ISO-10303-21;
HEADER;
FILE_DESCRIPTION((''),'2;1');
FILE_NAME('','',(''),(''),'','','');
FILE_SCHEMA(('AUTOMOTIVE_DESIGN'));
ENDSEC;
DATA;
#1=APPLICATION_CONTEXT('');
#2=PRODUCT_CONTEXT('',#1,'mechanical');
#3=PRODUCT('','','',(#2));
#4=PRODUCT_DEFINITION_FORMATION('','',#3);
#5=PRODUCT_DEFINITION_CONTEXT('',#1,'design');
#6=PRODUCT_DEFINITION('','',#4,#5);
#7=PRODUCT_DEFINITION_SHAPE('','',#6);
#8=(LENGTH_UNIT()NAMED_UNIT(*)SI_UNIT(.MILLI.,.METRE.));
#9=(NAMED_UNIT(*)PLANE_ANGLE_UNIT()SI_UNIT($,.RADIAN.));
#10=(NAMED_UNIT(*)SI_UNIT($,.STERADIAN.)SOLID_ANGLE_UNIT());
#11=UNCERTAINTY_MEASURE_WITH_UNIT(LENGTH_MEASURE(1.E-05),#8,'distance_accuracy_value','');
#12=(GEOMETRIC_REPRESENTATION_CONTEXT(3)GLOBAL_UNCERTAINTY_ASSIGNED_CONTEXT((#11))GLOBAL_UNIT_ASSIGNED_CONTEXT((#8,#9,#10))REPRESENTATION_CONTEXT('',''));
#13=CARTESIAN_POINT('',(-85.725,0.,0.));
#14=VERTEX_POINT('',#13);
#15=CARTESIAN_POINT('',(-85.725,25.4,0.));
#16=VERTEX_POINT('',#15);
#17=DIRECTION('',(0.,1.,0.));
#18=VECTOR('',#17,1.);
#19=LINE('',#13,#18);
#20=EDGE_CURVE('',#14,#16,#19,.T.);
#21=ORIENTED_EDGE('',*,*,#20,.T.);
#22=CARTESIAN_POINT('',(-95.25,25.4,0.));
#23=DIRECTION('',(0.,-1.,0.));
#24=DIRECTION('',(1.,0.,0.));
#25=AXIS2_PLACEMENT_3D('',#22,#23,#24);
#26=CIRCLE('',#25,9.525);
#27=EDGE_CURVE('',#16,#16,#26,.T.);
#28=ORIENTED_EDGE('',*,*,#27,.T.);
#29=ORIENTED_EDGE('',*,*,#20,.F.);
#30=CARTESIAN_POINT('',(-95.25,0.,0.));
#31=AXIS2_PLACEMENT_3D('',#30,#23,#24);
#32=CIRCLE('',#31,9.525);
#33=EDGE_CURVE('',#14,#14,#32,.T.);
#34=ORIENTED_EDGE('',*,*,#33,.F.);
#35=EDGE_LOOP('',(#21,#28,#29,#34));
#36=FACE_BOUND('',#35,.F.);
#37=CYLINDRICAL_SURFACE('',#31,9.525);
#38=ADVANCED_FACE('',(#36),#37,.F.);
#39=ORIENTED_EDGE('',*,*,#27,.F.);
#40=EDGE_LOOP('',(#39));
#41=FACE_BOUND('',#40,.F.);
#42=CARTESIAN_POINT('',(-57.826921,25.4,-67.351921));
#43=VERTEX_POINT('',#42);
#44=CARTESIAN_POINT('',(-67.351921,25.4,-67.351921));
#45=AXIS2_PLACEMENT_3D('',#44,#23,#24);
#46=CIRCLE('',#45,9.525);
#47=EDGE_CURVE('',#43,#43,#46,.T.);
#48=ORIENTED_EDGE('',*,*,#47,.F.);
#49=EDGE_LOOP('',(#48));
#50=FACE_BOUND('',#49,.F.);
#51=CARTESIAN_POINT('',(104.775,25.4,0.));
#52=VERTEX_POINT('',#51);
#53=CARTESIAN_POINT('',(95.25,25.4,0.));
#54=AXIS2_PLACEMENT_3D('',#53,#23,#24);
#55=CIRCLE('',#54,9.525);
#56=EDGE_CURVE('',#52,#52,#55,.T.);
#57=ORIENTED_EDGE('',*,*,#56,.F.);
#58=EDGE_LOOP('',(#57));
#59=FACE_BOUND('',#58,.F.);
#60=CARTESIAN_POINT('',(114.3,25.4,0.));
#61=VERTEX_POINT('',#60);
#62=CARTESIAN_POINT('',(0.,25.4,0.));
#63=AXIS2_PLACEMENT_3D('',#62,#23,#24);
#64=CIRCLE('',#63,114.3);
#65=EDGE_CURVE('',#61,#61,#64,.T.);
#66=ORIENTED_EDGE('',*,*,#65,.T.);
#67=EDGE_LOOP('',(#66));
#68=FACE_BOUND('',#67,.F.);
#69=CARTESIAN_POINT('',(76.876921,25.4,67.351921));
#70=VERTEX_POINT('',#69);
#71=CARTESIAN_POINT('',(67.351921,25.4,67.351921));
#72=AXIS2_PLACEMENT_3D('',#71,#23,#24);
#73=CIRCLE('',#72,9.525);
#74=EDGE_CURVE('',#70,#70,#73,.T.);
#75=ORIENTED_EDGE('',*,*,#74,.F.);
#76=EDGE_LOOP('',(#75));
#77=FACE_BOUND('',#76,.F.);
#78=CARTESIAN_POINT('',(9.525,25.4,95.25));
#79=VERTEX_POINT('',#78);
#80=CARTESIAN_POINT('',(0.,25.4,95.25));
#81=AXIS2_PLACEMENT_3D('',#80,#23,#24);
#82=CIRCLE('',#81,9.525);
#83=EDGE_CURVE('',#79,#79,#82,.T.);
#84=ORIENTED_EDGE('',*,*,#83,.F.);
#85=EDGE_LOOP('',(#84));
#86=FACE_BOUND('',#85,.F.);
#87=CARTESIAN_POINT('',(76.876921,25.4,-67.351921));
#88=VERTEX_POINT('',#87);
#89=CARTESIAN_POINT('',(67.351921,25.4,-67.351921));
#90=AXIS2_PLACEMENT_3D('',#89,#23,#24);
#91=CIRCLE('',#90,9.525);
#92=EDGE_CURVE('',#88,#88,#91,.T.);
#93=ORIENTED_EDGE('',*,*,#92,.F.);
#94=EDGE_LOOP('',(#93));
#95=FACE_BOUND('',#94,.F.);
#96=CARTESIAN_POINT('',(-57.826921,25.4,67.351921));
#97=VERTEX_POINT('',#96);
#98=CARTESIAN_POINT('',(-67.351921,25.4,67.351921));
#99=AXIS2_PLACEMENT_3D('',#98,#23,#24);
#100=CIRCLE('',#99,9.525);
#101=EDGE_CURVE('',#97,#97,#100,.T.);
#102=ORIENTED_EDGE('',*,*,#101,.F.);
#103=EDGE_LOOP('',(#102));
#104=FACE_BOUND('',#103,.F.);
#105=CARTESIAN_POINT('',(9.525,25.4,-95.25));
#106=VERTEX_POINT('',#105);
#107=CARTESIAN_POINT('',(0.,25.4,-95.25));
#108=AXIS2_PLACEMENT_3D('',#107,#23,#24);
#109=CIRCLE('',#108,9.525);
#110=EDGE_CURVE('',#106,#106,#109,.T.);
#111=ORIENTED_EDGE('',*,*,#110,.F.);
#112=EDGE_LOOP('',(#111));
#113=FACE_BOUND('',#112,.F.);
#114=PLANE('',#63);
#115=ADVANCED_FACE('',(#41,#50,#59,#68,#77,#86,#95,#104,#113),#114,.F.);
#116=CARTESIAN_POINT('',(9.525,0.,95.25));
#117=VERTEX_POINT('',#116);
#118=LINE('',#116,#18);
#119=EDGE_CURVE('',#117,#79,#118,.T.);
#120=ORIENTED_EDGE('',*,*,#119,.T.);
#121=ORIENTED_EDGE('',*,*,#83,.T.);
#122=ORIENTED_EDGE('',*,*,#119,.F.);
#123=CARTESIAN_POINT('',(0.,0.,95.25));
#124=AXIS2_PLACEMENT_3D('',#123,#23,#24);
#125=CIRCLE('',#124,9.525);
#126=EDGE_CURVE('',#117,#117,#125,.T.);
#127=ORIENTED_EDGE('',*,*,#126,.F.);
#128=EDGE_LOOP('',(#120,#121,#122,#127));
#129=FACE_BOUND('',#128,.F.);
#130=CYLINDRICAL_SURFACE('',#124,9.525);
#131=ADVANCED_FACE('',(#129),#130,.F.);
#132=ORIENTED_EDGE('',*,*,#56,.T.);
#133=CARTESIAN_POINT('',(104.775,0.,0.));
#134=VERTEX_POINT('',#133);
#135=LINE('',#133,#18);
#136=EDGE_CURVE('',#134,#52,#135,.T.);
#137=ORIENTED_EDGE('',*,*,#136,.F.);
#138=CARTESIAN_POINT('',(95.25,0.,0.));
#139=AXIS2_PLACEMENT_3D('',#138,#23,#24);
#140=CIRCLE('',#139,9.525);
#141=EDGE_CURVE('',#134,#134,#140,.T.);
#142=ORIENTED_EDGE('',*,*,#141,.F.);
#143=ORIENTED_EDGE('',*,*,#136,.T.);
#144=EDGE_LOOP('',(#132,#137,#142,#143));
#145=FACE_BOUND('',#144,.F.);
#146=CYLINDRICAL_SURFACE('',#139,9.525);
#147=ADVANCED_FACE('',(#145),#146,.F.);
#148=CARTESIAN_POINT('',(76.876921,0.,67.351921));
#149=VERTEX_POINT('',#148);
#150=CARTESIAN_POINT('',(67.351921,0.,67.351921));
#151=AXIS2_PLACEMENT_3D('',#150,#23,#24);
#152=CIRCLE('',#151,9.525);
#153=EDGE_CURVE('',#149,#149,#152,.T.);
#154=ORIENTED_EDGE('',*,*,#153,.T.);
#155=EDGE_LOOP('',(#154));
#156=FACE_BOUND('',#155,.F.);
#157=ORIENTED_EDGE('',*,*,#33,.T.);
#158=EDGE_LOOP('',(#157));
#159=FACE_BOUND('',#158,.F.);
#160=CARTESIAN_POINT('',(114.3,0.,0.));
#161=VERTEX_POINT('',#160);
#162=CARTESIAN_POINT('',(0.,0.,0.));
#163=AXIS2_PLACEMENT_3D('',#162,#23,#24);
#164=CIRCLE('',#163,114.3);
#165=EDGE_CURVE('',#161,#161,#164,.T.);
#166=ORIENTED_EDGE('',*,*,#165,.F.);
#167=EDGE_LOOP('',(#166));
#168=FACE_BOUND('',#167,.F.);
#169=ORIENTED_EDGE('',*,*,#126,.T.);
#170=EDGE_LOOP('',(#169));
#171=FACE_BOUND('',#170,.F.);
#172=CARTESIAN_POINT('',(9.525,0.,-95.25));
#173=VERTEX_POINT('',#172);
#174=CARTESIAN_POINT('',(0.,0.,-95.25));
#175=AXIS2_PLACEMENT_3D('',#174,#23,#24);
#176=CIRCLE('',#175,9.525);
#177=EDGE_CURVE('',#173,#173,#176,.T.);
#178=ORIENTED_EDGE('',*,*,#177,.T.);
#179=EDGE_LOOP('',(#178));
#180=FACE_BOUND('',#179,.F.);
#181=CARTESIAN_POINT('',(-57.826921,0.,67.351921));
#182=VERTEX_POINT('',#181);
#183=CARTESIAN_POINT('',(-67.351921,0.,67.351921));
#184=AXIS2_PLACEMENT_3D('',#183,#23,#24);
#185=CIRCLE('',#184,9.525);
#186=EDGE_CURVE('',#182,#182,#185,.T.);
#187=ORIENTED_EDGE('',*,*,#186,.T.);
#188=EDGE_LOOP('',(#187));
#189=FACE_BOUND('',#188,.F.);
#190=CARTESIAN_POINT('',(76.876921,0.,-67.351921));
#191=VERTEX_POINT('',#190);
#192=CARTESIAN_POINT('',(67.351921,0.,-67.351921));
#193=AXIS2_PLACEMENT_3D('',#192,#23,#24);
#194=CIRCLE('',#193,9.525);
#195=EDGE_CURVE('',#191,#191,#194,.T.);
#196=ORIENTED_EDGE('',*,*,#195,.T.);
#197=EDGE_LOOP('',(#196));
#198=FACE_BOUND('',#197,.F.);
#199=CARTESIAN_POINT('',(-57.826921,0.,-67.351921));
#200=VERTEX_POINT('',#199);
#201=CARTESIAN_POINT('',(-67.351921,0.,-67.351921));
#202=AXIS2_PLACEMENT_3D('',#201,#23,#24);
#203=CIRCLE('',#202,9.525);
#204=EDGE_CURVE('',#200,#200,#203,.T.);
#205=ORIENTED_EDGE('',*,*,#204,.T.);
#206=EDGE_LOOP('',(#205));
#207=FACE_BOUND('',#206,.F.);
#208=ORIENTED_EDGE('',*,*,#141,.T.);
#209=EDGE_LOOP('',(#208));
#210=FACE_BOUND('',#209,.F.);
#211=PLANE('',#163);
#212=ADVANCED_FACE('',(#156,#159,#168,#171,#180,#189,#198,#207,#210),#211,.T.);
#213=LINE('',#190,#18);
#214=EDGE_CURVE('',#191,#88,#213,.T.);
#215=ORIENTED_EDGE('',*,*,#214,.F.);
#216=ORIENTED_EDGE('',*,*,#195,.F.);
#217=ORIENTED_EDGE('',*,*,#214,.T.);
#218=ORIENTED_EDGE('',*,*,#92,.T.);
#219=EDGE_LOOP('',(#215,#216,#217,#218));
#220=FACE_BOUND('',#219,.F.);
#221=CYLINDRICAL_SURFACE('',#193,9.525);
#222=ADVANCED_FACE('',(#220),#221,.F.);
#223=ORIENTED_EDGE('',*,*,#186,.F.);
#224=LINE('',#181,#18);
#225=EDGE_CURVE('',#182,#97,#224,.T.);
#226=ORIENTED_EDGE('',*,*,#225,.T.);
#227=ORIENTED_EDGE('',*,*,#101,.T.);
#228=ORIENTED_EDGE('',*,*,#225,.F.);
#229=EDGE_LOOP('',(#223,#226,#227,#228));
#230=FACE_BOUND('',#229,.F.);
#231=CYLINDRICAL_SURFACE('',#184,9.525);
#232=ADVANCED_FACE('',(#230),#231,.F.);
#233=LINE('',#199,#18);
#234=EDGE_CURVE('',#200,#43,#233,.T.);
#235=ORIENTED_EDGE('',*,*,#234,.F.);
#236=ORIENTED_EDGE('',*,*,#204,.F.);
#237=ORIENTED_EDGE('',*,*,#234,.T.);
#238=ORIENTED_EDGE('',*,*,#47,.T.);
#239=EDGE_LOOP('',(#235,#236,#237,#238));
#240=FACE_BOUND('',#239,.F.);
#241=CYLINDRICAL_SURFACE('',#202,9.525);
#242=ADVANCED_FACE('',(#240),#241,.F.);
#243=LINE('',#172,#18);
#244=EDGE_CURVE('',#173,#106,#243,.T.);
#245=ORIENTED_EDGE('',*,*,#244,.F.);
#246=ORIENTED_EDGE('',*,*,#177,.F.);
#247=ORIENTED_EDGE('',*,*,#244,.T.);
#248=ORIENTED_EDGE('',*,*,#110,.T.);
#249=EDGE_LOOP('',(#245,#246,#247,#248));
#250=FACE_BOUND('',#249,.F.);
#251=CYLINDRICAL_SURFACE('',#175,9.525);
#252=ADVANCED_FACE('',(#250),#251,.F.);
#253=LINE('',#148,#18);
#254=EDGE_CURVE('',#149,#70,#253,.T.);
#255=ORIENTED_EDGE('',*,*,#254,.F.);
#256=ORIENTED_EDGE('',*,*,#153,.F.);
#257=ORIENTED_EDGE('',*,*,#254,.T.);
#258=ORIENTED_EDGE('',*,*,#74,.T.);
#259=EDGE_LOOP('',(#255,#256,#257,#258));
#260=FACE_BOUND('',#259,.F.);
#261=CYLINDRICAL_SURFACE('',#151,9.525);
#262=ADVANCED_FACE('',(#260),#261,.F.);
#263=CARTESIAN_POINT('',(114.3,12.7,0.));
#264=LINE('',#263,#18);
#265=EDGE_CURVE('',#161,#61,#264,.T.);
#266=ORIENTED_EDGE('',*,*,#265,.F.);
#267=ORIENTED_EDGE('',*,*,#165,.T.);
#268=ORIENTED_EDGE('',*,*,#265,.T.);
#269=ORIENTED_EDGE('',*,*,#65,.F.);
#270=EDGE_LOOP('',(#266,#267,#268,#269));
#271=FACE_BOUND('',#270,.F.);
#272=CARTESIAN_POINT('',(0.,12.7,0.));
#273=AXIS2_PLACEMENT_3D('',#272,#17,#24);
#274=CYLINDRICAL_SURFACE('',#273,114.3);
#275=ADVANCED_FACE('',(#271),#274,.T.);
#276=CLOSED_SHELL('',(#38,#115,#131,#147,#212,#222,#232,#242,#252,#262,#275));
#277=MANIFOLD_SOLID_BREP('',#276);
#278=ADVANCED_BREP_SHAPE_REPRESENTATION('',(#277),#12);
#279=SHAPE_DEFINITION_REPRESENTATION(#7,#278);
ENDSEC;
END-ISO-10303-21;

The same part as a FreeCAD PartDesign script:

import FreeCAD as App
import Part
import Sketcher

V = App.Vector
Q = App.Units.Quantity

doc = App.newDocument("Part")
body = doc.addObject("PartDesign::Body", "Body")

sketch1 = body.newObject("Sketcher::SketchObject", "Sketch")
sketch1.AttachmentSupport = (doc.getObject("XY_Plane"), [""])
sketch1.MapMode = "FlatFace"
sketch1.addGeometry([
    Part.LineSegment(V(114, 0, 0), V(114, 25, 0)),
    Part.LineSegment(V(114, 25, 0), V(0, 25, 0)),
    Part.LineSegment(V(0, 25, 0), V(0, 0, 0)),
    Part.LineSegment(V(0, 0, 0), V(114, 0, 0)),
], False)
sketch1.addConstraint([
    Sketcher.Constraint("Coincident", 0, 2, 1, 1),
    Sketcher.Constraint("Coincident", 1, 2, 2, 1),
    Sketcher.Constraint("Coincident", 2, 2, 3, 1),
    Sketcher.Constraint("Coincident", 3, 2, 0, 1),
    Sketcher.Constraint("Vertical", 0),
    Sketcher.Constraint("Horizontal", 1),
    Sketcher.Constraint("Vertical", 2),
    Sketcher.Constraint("Horizontal", 3),
    Sketcher.Constraint("Coincident", 2, 2, -1, 1),
    Sketcher.Constraint("DistanceY", 0, 1, 0, 2, Q("1 in")),
    Sketcher.Constraint("DistanceX", 1, 2, 1, 1, Q("4.5 in")),
])
revolution = body.newObject("PartDesign::Revolution", "Revolution")
revolution.Profile = sketch1
revolution.ReferenceAxis = (sketch1, ["V_Axis"])
revolution.Angle = 360

sketch2 = body.newObject("Sketcher::SketchObject", "Sketch001")
sketch2.AttachmentSupport = (doc.getObject("XZ_Plane"), [""])
sketch2.MapMode = "FlatFace"
sketch2.addGeometry([
    Part.Circle(V(-95, 0, 0), V(0, 0, 1), 10),
    Part.Circle(V(-67, -67, 0), V(0, 0, 1), 10),
    Part.Circle(V(0, -95, 0), V(0, 0, 1), 10),
    Part.Circle(V(67, -67, 0), V(0, 0, 1), 10),
    Part.Circle(V(95, 0, 0), V(0, 0, 1), 10),
    Part.Circle(V(67, 67, 0), V(0, 0, 1), 10),
    Part.Circle(V(0, 95, 0), V(0, 0, 1), 10),
    Part.Circle(V(-67, 67, 0), V(0, 0, 1), 10),
], False)
sketch2.addConstraint([
    Sketcher.Constraint("Equal", 0, 1),
    Sketcher.Constraint("Equal", 1, 2),
    Sketcher.Constraint("Equal", 2, 3),
    Sketcher.Constraint("Equal", 3, 4),
    Sketcher.Constraint("Equal", 4, 5),
    Sketcher.Constraint("Equal", 5, 6),
    Sketcher.Constraint("Equal", 6, 7),
    Sketcher.Constraint("Symmetric", 0, 3, 4, 3, -1, 1),
    Sketcher.Constraint("Symmetric", 1, 3, 5, 3, -1, 1),
    Sketcher.Constraint("Symmetric", 2, 3, 6, 3, -1, 1),
    Sketcher.Constraint("Symmetric", 3, 3, 7, 3, -1, 1),
    Sketcher.Constraint("Symmetric", 1, 3, 3, 3, -2),
    Sketcher.Constraint("PointOnObject", 0, 3, -1),
    Sketcher.Constraint("PointOnObject", 2, 3, -2),
    Sketcher.Constraint("Diameter", 0, Q("0.75 in")),
    Sketcher.Constraint("DistanceX", 0, 3, 4, 3, Q("7.5 in")),
    Sketcher.Constraint("DistanceY", 2, 3, -1, 1, Q("3.75 in")),
    Sketcher.Constraint("DistanceX", 1, 3, -1, 1, 67.351921),
    Sketcher.Constraint("DistanceY", 1, 3, -1, 1, 67.351921),
])
pocket1 = body.newObject("PartDesign::Pocket", "Pocket")
pocket1.Profile = sketch2
pocket1.Type = "ThroughAll"

doc.recompute()
